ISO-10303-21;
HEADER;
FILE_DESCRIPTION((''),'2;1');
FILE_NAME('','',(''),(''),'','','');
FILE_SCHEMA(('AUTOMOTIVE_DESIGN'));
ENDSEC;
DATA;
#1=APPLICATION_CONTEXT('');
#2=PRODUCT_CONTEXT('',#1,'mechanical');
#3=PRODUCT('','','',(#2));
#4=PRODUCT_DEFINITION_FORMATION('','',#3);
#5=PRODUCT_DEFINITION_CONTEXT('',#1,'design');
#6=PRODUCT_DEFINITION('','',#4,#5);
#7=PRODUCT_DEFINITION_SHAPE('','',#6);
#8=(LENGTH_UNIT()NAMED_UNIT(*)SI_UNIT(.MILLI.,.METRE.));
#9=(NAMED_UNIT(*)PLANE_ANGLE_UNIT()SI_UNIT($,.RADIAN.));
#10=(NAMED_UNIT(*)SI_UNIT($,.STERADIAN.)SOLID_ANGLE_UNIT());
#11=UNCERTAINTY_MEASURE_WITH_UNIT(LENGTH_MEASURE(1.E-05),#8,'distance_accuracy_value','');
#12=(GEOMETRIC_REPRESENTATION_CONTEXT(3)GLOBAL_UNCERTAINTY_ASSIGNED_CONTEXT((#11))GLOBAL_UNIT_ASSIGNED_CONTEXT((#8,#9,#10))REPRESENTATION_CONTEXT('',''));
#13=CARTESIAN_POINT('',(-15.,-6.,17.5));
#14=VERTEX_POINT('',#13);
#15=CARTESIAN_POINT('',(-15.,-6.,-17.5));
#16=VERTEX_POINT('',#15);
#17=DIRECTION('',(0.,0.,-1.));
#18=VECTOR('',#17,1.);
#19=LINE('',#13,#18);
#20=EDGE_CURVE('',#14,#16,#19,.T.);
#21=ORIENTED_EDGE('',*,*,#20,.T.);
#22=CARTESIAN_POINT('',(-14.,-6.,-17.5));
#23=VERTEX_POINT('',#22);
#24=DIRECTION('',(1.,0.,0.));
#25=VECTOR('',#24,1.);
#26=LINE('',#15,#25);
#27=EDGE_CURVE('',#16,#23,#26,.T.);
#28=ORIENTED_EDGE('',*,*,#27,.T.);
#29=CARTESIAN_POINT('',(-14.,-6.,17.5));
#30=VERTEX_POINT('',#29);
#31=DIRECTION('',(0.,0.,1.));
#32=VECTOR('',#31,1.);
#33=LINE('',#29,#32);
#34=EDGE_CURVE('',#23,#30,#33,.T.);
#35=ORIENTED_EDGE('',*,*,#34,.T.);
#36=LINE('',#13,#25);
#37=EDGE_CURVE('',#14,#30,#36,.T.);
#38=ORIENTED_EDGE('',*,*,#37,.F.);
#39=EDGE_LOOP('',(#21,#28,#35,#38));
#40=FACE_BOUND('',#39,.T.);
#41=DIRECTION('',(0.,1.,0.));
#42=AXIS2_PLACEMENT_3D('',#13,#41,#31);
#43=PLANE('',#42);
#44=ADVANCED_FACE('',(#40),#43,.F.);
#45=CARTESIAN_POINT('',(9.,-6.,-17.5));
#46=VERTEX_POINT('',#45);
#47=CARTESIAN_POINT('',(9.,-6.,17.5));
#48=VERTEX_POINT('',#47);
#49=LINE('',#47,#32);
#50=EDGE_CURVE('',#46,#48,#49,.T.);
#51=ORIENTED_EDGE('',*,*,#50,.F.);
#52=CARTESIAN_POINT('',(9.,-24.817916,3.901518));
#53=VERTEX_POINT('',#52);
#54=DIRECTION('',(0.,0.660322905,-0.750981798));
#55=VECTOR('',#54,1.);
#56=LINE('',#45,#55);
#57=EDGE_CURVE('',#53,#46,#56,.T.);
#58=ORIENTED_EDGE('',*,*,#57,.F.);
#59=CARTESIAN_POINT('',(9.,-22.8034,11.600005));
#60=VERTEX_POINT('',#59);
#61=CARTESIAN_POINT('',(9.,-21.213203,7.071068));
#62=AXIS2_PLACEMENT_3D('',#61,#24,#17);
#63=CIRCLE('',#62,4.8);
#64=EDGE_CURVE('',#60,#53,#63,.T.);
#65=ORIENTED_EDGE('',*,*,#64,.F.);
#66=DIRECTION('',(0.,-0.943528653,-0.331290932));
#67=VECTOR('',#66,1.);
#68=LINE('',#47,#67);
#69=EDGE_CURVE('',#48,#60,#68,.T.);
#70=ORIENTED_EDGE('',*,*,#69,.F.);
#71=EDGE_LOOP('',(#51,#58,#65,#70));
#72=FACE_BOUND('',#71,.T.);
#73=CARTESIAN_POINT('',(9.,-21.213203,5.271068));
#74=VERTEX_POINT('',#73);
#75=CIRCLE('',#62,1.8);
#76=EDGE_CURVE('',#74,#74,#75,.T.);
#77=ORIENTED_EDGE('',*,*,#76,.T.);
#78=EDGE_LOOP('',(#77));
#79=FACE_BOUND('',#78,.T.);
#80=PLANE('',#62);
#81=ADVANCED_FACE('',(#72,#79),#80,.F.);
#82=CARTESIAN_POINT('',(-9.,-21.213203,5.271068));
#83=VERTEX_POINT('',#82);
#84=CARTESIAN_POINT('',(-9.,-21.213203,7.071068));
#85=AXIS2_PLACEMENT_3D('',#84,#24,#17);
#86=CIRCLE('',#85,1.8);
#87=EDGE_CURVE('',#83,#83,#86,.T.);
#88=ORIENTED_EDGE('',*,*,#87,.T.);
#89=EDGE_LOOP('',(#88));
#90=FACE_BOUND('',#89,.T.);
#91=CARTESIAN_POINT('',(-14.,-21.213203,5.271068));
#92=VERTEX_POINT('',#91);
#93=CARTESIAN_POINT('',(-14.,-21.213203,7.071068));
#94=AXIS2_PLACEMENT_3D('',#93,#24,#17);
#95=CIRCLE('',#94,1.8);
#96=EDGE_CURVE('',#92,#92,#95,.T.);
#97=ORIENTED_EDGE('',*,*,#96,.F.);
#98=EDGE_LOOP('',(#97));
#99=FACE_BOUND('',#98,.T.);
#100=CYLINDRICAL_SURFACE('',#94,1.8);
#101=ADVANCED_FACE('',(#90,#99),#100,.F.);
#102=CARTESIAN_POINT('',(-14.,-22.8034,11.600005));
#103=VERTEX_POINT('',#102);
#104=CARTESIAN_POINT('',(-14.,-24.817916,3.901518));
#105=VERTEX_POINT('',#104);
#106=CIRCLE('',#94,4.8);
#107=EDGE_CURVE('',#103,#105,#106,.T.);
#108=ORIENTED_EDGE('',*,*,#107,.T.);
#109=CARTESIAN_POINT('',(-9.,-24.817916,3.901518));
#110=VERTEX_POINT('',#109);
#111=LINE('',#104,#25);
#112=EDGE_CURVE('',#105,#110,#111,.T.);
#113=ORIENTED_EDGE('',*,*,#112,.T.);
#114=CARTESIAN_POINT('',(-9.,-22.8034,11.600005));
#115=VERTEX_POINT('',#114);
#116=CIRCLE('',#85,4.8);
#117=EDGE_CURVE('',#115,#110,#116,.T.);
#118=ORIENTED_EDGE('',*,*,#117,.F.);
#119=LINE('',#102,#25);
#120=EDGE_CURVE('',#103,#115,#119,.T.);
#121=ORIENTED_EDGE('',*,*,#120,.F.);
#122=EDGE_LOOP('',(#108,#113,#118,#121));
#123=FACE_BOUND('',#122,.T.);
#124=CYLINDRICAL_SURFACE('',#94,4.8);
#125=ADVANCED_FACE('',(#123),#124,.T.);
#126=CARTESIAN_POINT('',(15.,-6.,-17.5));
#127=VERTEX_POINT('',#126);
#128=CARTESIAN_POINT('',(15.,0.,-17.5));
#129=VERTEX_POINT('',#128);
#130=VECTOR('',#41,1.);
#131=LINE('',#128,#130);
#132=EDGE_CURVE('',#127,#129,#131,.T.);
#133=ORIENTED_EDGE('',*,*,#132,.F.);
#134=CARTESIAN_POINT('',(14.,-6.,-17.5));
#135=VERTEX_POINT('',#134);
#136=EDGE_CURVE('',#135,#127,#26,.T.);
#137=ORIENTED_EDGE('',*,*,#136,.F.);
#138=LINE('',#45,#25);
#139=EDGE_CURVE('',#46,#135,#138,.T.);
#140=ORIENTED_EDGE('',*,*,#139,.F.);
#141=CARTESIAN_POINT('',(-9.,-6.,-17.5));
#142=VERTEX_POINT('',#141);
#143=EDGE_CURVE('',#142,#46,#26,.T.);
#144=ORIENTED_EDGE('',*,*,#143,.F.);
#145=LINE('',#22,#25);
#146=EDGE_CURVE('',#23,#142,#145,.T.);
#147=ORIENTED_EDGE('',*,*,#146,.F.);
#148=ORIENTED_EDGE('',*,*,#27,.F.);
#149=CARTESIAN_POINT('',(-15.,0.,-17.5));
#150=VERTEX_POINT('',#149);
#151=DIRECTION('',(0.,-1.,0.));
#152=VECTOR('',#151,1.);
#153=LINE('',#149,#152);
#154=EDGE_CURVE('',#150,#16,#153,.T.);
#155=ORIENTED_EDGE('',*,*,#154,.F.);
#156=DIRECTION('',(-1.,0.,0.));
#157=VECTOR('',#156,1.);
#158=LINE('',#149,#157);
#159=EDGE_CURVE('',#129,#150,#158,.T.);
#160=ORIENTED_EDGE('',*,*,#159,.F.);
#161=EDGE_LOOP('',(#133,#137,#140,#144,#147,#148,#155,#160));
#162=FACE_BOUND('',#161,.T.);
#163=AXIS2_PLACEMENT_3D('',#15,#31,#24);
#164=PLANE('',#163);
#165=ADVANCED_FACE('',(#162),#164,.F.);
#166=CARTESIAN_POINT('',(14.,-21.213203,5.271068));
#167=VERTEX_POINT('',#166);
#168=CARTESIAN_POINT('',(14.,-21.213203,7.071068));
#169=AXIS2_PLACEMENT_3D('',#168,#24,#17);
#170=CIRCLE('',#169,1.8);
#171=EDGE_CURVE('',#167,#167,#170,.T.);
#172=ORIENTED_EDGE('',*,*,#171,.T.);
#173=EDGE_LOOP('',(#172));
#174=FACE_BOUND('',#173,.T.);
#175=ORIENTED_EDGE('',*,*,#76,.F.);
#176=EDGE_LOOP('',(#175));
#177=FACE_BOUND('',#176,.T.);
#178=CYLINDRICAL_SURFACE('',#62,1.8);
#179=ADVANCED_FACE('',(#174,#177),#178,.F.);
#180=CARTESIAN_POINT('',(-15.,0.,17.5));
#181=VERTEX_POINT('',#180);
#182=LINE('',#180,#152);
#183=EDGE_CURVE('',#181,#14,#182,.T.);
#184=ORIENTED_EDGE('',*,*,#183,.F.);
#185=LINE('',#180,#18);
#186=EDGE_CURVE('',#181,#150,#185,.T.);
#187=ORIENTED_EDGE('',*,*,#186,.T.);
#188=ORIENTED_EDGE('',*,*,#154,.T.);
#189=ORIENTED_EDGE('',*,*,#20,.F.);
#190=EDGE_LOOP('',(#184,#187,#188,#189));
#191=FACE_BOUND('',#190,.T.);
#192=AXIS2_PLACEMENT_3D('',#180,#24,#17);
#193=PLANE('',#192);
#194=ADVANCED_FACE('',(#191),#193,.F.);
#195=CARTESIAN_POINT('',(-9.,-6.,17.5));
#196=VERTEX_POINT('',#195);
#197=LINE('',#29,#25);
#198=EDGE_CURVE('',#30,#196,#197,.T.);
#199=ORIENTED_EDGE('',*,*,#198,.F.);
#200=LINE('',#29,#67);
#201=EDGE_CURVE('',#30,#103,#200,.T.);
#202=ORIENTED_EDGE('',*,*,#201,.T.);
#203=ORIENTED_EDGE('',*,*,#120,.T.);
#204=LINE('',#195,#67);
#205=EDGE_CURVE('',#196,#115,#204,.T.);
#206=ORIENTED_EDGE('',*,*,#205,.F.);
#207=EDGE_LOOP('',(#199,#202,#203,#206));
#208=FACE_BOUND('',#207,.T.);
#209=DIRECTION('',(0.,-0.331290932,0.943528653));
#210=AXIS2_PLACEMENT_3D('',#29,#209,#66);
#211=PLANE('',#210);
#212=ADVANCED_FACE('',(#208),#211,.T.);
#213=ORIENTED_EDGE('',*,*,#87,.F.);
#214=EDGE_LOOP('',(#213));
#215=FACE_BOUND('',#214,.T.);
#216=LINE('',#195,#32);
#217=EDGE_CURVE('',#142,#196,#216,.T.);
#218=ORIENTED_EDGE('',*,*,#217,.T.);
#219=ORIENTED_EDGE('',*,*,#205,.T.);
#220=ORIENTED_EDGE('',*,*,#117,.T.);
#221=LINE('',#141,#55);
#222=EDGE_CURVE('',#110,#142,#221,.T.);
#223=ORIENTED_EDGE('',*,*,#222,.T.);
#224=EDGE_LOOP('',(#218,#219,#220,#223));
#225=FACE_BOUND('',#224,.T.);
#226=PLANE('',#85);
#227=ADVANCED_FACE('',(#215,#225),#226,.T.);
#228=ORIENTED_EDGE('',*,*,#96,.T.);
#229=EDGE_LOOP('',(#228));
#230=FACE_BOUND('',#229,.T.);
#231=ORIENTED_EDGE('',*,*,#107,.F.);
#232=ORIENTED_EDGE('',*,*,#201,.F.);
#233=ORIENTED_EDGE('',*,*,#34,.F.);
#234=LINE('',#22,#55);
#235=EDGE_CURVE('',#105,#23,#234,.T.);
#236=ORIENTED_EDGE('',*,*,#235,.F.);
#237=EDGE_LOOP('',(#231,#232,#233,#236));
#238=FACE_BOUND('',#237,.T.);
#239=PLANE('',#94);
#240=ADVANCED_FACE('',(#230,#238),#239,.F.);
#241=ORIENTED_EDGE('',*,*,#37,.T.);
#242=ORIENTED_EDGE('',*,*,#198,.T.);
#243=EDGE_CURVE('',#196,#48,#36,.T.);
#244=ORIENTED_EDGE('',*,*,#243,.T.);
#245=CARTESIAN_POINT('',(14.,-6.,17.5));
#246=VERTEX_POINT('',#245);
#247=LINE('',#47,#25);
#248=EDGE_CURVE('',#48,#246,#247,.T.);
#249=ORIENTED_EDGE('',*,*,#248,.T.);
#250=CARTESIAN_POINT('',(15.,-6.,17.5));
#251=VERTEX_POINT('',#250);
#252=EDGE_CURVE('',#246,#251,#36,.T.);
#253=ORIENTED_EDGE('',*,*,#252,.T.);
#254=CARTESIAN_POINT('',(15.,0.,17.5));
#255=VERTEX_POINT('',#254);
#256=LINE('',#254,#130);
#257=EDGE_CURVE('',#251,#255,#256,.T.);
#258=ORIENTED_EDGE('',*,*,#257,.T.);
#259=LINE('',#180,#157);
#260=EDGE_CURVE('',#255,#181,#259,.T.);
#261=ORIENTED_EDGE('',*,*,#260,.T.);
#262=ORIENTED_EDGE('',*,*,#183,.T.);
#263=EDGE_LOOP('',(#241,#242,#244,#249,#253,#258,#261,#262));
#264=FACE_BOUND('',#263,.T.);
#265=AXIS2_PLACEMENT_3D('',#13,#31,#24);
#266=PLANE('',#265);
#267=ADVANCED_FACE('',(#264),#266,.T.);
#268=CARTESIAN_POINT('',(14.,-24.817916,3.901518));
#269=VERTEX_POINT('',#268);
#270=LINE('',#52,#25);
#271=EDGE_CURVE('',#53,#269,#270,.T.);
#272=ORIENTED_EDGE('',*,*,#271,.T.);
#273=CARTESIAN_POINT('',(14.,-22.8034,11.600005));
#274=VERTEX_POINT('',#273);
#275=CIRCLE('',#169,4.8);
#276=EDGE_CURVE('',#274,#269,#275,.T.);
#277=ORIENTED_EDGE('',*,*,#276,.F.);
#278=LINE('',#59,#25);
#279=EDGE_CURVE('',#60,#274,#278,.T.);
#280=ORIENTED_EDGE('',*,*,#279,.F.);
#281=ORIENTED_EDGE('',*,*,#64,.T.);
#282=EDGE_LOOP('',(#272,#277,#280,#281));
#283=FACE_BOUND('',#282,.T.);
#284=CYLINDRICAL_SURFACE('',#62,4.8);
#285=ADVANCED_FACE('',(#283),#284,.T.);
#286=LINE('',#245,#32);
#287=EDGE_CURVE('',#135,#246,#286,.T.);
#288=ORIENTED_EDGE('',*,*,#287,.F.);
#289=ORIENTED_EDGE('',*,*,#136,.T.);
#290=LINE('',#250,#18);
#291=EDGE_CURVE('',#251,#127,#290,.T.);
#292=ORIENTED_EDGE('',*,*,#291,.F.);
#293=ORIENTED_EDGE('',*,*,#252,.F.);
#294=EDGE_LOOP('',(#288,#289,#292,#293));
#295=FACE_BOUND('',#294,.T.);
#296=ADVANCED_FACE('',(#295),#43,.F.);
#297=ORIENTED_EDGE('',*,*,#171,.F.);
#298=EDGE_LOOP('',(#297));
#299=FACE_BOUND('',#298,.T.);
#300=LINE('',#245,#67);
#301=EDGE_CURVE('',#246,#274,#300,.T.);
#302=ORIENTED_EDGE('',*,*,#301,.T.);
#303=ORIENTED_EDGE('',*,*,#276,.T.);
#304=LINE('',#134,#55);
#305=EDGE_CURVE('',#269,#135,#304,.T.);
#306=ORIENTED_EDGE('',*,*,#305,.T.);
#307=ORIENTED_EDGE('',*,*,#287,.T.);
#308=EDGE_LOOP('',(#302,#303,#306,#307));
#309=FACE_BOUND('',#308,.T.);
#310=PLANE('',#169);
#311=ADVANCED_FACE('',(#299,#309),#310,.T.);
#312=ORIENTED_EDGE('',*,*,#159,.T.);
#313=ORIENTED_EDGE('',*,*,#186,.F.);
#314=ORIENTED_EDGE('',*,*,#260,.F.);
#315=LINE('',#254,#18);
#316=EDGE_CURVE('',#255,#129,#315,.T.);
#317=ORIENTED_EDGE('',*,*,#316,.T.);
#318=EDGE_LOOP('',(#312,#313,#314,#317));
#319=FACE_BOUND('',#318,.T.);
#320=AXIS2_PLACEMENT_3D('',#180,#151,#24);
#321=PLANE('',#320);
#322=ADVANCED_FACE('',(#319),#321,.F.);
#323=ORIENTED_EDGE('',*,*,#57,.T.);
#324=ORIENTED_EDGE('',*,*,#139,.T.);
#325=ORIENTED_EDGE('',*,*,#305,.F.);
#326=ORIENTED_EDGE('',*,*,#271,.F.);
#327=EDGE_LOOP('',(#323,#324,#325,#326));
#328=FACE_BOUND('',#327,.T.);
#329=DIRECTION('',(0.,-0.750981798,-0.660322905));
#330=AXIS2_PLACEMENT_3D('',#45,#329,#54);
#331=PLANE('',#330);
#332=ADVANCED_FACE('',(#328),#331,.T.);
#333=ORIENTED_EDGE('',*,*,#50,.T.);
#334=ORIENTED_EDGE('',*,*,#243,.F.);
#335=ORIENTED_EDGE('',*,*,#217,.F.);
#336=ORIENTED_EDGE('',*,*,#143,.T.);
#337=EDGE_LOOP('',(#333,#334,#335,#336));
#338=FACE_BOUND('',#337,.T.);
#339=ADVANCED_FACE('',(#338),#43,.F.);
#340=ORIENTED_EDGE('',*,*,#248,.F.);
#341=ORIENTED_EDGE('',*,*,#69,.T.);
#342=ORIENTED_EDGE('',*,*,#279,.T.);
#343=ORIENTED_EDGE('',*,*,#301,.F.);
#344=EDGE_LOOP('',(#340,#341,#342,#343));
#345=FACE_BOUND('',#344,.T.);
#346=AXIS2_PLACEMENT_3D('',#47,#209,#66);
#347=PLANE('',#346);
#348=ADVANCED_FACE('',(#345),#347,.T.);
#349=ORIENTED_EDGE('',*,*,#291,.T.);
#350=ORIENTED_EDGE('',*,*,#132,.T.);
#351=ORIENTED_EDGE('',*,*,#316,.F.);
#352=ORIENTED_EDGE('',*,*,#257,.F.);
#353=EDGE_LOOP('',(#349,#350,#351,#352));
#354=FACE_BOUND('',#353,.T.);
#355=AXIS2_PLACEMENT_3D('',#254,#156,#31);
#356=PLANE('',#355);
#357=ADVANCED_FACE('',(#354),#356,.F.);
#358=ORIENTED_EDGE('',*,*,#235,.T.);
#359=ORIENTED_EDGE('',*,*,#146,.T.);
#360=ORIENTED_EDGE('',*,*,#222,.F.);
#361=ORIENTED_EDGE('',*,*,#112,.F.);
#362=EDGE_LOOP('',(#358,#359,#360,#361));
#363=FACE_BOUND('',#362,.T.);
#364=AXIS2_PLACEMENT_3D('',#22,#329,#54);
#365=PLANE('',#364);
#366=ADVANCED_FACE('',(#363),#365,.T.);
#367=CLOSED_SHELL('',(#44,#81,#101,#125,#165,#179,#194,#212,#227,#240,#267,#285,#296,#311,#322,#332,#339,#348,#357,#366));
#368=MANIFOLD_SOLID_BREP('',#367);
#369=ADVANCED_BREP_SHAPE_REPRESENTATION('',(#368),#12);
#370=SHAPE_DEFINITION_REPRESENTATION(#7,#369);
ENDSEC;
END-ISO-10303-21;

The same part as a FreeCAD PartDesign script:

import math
import FreeCAD as App
import Part
import Sketcher
from FreeCAD import Vector

doc = App.newDocument("Part")
body = doc.addObject("PartDesign::Body", "Body")

sketch1 = doc.addObject("Sketcher::SketchObject", "Sketch")
body.addObject(sketch1)
sketch1.AttachmentSupport = (doc.XY_Plane, [""])
sketch1.MapMode = "FlatFace"
sketch1.addGeometry(Part.LineSegment(Vector(-15, 0, 0), Vector(-15, -6, 0)), False)
sketch1.addGeometry(Part.LineSegment(Vector(-15, -6, 0), Vector(15, -6, 0)), False)
sketch1.addGeometry(Part.LineSegment(Vector(15, -6, 0), Vector(15, 0, 0)), False)
sketch1.addGeometry(Part.LineSegment(Vector(15, 0, 0), Vector(-15, 0, 0)), False)
sketch1.addConstraint(Sketcher.Constraint("Coincident", 0, 2, 1, 1))
sketch1.addConstraint(Sketcher.Constraint("Coincident", 1, 2, 2, 1))
sketch1.addConstraint(Sketcher.Constraint("Coincident", 2, 2, 3, 1))
sketch1.addConstraint(Sketcher.Constraint("Coincident", 3, 2, 0, 1))
sketch1.addConstraint(Sketcher.Constraint("Vertical", 0))
sketch1.addConstraint(Sketcher.Constraint("Horizontal", 1))
sketch1.addConstraint(Sketcher.Constraint("Vertical", 2))
sketch1.addConstraint(Sketcher.Constraint("Horizontal", 3))
sketch1.addConstraint(Sketcher.Constraint("Symmetric", 2, 2, 3, 2, -1, 1))
sketch1.addConstraint(Sketcher.Constraint("DistanceX", 1, 1, 1, 2, 30.0))
sketch1.addConstraint(Sketcher.Constraint("DistanceY", 0, 2, 0, 1, 6.0))
pad1 = doc.addObject("PartDesign::Pad", "Pad")
body.addObject(pad1)
pad1.Profile = sketch1
pad1.Length = 35
pad1.Midplane = True

sketch2 = doc.addObject("Sketcher::SketchObject", "Sketch001")
body.addObject(sketch2)
sketch2.AttachmentSupport = (doc.YZ_Plane, [""])
sketch2.MapMode = "FlatFace"
sketch2.AttachmentOffset = App.Placement(Vector(0, 0, 14), App.Rotation())
sketch2.addGeometry(Part.LineSegment(Vector(-6, -17.5, 0), Vector(-6, 17.5, 0)), False)
sketch2.addGeometry(Part.LineSegment(Vector(-6, 17.5, 0), Vector(-22.8, 11.6, 0)), False)
sketch2.addGeometry(Part.ArcOfCircle(Part.Circle(Vector(-21.2, 7.1, 0), Vector(0, 0, 1), 4.8), math.radians(109), math.radians(221)), False)
sketch2.addGeometry(Part.LineSegment(Vector(-24.8, 3.9, 0), Vector(-6, -17.5, 0)), False)
sketch2.addGeometry(Part.Circle(Vector(-21.2, 7.1, 0), Vector(0, 0, 1), 1.8), False)
sketch2.addConstraint(Sketcher.Constraint("Coincident", 0, 2, 1, 1))
sketch2.addConstraint(Sketcher.Constraint("Tangent", 1, 2, 2, 1))
sketch2.addConstraint(Sketcher.Constraint("Tangent", 2, 2, 3, 1))
sketch2.addConstraint(Sketcher.Constraint("Coincident", 3, 2, 0, 1))
sketch2.addConstraint(Sketcher.Constraint("Vertical", 0))
sketch2.addConstraint(Sketcher.Constraint("Coincident", 4, 3, 2, 3))
sketch2.addConstraint(Sketcher.Constraint("Diameter", 4, 3.6))
sketch2.addConstraint(Sketcher.Constraint("Radius", 2, 4.8))
sketch2.addConstraint(Sketcher.Constraint("DistanceY", 0, 1, 0, 2, 35.0))
sketch2.addConstraint(Sketcher.Constraint("DistanceX", 0, 2, -1, 1, 6.0))
sketch2.addConstraint(Sketcher.Constraint("DistanceY", -1, 1, 0, 2, 17.5))
sketch2.addConstraint(Sketcher.Constraint("DistanceX", 1, 2, -1, 1, 22.8034))
sketch2.addConstraint(Sketcher.Constraint("Distance", 3, 28.498051))
pad2 = doc.addObject("PartDesign::Pad", "Pad001")
body.addObject(pad2)
pad2.Profile = sketch2
pad2.Length = 5
pad2.Reversed = True
doc.recompute()

linearpattern = doc.addObject("PartDesign::LinearPattern", "LinearPattern")
body.addObject(linearpattern)
linearpattern.Originals = [pad2]
linearpattern.Direction = (doc.X_Axis, [""])
linearpattern.Mode = "offset"
linearpattern.Offset = 23
linearpattern.Occurrences = 2
linearpattern.Reversed = True
body.Tip = linearpattern

doc.recompute()
